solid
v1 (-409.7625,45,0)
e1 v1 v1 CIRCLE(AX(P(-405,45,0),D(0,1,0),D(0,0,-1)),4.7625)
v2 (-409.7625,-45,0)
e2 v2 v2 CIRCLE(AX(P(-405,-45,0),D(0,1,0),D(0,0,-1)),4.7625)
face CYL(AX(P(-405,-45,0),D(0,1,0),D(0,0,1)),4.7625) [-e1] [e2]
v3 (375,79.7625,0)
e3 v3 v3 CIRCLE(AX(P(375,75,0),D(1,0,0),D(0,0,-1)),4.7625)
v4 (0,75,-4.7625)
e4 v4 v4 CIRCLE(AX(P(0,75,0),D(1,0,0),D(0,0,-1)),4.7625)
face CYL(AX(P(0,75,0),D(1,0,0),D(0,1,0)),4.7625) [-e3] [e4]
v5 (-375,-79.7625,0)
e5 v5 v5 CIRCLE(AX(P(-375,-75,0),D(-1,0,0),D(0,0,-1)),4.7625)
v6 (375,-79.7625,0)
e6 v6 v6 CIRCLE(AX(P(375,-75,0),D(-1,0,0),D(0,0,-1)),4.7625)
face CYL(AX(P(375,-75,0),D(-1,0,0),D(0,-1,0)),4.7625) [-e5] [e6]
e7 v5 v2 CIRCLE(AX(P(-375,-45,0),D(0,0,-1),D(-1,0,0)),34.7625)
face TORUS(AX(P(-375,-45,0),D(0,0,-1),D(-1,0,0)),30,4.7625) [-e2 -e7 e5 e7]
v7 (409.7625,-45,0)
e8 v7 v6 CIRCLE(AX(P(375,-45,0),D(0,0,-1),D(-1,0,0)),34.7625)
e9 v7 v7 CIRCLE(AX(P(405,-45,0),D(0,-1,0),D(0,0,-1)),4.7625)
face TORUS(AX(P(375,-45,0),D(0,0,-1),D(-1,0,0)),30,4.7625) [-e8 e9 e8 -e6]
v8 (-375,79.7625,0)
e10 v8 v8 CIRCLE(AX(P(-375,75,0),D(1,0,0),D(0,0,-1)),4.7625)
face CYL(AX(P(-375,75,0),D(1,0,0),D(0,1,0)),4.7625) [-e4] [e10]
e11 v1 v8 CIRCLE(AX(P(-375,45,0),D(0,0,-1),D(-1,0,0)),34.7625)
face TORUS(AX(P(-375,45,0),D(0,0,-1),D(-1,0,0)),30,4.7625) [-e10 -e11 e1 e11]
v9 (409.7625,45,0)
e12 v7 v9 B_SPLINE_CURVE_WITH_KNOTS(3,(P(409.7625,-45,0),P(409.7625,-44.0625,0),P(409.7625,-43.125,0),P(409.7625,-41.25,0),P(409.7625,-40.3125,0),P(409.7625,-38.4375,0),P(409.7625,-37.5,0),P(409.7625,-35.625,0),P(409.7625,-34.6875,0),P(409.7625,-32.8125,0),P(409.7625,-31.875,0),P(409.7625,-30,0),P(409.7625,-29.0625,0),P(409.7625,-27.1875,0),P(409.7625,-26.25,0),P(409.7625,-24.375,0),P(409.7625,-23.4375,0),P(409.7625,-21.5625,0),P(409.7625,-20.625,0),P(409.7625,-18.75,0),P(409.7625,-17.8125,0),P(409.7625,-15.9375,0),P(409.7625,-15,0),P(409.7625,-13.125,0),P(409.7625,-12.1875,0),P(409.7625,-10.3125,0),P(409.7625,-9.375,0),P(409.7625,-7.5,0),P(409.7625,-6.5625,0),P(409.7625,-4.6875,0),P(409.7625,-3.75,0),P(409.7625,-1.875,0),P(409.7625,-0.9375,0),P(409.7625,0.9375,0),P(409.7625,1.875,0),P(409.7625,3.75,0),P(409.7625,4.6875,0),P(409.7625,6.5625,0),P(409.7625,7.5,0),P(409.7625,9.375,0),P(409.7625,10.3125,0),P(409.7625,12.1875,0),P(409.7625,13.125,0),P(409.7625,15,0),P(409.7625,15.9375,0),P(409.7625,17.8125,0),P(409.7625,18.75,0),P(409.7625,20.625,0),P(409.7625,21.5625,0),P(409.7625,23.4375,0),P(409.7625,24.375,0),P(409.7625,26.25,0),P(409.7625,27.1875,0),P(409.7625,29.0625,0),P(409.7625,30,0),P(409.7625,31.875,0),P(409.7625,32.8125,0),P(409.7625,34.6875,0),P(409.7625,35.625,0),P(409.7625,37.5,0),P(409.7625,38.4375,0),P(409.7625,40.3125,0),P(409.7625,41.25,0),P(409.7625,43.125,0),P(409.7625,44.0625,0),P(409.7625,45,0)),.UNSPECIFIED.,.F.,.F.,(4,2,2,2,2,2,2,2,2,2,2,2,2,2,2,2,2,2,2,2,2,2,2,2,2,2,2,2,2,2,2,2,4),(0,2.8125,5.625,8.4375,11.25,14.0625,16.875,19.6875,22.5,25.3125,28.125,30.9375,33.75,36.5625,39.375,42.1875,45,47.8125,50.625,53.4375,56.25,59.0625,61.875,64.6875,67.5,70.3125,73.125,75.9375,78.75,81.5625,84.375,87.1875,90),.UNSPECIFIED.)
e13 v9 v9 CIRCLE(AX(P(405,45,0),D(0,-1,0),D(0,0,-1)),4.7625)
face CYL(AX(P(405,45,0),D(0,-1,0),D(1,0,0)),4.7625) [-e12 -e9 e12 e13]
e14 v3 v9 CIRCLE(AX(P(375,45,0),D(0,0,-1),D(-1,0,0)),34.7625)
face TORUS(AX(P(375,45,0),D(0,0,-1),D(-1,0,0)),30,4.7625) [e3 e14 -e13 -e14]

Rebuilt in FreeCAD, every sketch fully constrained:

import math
import FreeCAD as App
import Part
import Sketcher
from FreeCAD import Vector
Q = App.Units.Quantity

doc = App.newDocument("Part")
body = doc.addObject("PartDesign::Body", "Body")

# Sketch on YZ plane
sketch1 = body.newObject("Sketcher::SketchObject", "Sketch")
sketch1.AttachmentSupport = (doc.getObject("YZ_Plane"), [""])
sketch1.MapMode = "FlatFace"
sketch1.addGeometry(Part.Circle(Vector(75, 0, 0), Vector(0, 0, 1), 4.7625), False)
sketch1.addConstraint([
    Sketcher.Constraint("PointOnObject", 0, 3, -1),
    Sketcher.Constraint("Diameter", 0, Q("9.525 mm")),
    Sketcher.Constraint("DistanceX", -1, 1, 0, 3, Q("75 mm")),
])

# Sketch on XY plane
sketch2 = body.newObject("Sketcher::SketchObject", "Sketch001")
sketch2.AttachmentSupport = (doc.getObject("XY_Plane"), [""])
sketch2.MapMode = "FlatFace"
sketch2.addGeometry([
    Part.LineSegment(Vector(375, -75, 0), Vector(-375, -75, 0)),  # 0
    Part.ArcOfCircle(Part.Circle(Vector(-375, -45, 0), Vector(0, 0, 1), 30), math.radians(180), math.radians(270)),  # 1
    Part.LineSegment(Vector(-405, -45, 0), Vector(-405, 45, 0)),  # 2
    Part.ArcOfCircle(Part.Circle(Vector(-375, 45, 0), Vector(0, 0, 1), 30), math.radians(90), math.radians(180)),  # 3
    Part.LineSegment(Vector(-375, 75, 0), Vector(375, 75, 0)),  # 4
    Part.ArcOfCircle(Part.Circle(Vector(375, 45, 0), Vector(0, 0, 1), 30), math.radians(0), math.radians(90)),  # 5
    Part.LineSegment(Vector(405, 45, 0), Vector(405, -45, 0)),  # 6
    Part.ArcOfCircle(Part.Circle(Vector(375, -45, 0), Vector(0, 0, 1), 30), math.radians(-90), math.radians(0)),  # 7
], False)
sketch2.addConstraint([
    Sketcher.Constraint("Tangent", 0, 2, 1, 2),
    Sketcher.Constraint("Tangent", 1, 1, 2, 1),
    Sketcher.Constraint("Tangent", 2, 2, 3, 2),
    Sketcher.Constraint("Tangent", 3, 1, 4, 1),
    Sketcher.Constraint("Tangent", 4, 2, 5, 2),
    Sketcher.Constraint("Tangent", 5, 1, 6, 1),
    Sketcher.Constraint("Tangent", 6, 2, 7, 2),
    Sketcher.Constraint("Tangent", 7, 1, 0, 1),
    Sketcher.Constraint("Horizontal", 0),
    Sketcher.Constraint("Vertical", 2),
    Sketcher.Constraint("Horizontal", 4),
    Sketcher.Constraint("Vertical", 6),
    Sketcher.Constraint("Equal", 1, 3),
    Sketcher.Constraint("Equal", 3, 5),
    Sketcher.Constraint("Equal", 5, 7),
    Sketcher.Constraint("Symmetric", 1, 3, 5, 3, -1, 1),
    Sketcher.Constraint("Radius", 1, Q("30 mm")),
    Sketcher.Constraint("DistanceX", 0, 2, 0, 1, Q("750 mm")),
    Sketcher.Constraint("DistanceY", 2, 1, 2, 2, Q("90 mm")),
])
doc.recompute()

additivepipe = body.newObject("PartDesign::AdditivePipe", "AdditivePipe")
additivepipe.Profile = sketch1
additivepipe.Spine = (sketch2, ["Edge1", "Edge2", "Edge3", "Edge4", "Edge5", "Edge6", "Edge7", "Edge8"])

doc.recompute()
